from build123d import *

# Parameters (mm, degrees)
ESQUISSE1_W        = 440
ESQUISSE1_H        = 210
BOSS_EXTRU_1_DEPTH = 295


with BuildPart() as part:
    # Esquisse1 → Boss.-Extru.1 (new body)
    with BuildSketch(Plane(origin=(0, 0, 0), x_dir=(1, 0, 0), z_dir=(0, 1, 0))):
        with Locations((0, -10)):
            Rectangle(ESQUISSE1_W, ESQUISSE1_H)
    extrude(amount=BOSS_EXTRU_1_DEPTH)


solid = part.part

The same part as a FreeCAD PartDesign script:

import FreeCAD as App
import Part
import Sketcher
from FreeCAD import Vector
Q = App.Units.Quantity


def add_polygon(sketch, points):
    """Adds a closed chain of lines whose ends are joined by coincident constraints."""
    first, n = sketch.GeometryCount, len(points)
    for a, b in zip(points, points[1:] + points[:1]):
        sketch.addGeometry(Part.LineSegment(App.Vector(*a, 0), App.Vector(*b, 0)), False)
    for i in range(n):
        sketch.addConstraint(Sketcher.Constraint("Coincident", first + i, 2, first + (i + 1) % n, 1))

doc = App.newDocument("Part")
body = doc.addObject("PartDesign::Body", "Body")

# Sketch on XZ plane
sketch1 = body.newObject("Sketcher::SketchObject", "Sketch")
sketch1.AttachmentSupport = (doc.getObject("XZ_Plane"), [""])
sketch1.MapMode = "FlatFace"
add_polygon(sketch1, [(-220, -95), (-220, 115), (220, 115), (220, -95)])  # lines 0-3
sketch1.addConstraint(Sketcher.Constraint("Vertical", 0))
sketch1.addConstraint(Sketcher.Constraint("Horizontal", 1))
sketch1.addConstraint(Sketcher.Constraint("Vertical", 2))
sketch1.addConstraint(Sketcher.Constraint("Horizontal", 3))
sketch1.addConstraint(Sketcher.Constraint("DistanceX", 1, 1, 1, 2, Q("440 mm")))
sketch1.addConstraint(Sketcher.Constraint("DistanceY", 0, 1, 0, 2, Q("210 mm")))
sketch1.addConstraint(Sketcher.Constraint("DistanceX", 0, 2, -1, 1, Q("220 mm")))
sketch1.addConstraint(Sketcher.Constraint("DistanceY", -1, 1, 0, 2, Q("115 mm")))
pad1 = body.newObject("PartDesign::Pad", "Pad")
pad1.Profile = sketch1
pad1.Length = 295
pad1.Reversed = True

doc.recompute()
